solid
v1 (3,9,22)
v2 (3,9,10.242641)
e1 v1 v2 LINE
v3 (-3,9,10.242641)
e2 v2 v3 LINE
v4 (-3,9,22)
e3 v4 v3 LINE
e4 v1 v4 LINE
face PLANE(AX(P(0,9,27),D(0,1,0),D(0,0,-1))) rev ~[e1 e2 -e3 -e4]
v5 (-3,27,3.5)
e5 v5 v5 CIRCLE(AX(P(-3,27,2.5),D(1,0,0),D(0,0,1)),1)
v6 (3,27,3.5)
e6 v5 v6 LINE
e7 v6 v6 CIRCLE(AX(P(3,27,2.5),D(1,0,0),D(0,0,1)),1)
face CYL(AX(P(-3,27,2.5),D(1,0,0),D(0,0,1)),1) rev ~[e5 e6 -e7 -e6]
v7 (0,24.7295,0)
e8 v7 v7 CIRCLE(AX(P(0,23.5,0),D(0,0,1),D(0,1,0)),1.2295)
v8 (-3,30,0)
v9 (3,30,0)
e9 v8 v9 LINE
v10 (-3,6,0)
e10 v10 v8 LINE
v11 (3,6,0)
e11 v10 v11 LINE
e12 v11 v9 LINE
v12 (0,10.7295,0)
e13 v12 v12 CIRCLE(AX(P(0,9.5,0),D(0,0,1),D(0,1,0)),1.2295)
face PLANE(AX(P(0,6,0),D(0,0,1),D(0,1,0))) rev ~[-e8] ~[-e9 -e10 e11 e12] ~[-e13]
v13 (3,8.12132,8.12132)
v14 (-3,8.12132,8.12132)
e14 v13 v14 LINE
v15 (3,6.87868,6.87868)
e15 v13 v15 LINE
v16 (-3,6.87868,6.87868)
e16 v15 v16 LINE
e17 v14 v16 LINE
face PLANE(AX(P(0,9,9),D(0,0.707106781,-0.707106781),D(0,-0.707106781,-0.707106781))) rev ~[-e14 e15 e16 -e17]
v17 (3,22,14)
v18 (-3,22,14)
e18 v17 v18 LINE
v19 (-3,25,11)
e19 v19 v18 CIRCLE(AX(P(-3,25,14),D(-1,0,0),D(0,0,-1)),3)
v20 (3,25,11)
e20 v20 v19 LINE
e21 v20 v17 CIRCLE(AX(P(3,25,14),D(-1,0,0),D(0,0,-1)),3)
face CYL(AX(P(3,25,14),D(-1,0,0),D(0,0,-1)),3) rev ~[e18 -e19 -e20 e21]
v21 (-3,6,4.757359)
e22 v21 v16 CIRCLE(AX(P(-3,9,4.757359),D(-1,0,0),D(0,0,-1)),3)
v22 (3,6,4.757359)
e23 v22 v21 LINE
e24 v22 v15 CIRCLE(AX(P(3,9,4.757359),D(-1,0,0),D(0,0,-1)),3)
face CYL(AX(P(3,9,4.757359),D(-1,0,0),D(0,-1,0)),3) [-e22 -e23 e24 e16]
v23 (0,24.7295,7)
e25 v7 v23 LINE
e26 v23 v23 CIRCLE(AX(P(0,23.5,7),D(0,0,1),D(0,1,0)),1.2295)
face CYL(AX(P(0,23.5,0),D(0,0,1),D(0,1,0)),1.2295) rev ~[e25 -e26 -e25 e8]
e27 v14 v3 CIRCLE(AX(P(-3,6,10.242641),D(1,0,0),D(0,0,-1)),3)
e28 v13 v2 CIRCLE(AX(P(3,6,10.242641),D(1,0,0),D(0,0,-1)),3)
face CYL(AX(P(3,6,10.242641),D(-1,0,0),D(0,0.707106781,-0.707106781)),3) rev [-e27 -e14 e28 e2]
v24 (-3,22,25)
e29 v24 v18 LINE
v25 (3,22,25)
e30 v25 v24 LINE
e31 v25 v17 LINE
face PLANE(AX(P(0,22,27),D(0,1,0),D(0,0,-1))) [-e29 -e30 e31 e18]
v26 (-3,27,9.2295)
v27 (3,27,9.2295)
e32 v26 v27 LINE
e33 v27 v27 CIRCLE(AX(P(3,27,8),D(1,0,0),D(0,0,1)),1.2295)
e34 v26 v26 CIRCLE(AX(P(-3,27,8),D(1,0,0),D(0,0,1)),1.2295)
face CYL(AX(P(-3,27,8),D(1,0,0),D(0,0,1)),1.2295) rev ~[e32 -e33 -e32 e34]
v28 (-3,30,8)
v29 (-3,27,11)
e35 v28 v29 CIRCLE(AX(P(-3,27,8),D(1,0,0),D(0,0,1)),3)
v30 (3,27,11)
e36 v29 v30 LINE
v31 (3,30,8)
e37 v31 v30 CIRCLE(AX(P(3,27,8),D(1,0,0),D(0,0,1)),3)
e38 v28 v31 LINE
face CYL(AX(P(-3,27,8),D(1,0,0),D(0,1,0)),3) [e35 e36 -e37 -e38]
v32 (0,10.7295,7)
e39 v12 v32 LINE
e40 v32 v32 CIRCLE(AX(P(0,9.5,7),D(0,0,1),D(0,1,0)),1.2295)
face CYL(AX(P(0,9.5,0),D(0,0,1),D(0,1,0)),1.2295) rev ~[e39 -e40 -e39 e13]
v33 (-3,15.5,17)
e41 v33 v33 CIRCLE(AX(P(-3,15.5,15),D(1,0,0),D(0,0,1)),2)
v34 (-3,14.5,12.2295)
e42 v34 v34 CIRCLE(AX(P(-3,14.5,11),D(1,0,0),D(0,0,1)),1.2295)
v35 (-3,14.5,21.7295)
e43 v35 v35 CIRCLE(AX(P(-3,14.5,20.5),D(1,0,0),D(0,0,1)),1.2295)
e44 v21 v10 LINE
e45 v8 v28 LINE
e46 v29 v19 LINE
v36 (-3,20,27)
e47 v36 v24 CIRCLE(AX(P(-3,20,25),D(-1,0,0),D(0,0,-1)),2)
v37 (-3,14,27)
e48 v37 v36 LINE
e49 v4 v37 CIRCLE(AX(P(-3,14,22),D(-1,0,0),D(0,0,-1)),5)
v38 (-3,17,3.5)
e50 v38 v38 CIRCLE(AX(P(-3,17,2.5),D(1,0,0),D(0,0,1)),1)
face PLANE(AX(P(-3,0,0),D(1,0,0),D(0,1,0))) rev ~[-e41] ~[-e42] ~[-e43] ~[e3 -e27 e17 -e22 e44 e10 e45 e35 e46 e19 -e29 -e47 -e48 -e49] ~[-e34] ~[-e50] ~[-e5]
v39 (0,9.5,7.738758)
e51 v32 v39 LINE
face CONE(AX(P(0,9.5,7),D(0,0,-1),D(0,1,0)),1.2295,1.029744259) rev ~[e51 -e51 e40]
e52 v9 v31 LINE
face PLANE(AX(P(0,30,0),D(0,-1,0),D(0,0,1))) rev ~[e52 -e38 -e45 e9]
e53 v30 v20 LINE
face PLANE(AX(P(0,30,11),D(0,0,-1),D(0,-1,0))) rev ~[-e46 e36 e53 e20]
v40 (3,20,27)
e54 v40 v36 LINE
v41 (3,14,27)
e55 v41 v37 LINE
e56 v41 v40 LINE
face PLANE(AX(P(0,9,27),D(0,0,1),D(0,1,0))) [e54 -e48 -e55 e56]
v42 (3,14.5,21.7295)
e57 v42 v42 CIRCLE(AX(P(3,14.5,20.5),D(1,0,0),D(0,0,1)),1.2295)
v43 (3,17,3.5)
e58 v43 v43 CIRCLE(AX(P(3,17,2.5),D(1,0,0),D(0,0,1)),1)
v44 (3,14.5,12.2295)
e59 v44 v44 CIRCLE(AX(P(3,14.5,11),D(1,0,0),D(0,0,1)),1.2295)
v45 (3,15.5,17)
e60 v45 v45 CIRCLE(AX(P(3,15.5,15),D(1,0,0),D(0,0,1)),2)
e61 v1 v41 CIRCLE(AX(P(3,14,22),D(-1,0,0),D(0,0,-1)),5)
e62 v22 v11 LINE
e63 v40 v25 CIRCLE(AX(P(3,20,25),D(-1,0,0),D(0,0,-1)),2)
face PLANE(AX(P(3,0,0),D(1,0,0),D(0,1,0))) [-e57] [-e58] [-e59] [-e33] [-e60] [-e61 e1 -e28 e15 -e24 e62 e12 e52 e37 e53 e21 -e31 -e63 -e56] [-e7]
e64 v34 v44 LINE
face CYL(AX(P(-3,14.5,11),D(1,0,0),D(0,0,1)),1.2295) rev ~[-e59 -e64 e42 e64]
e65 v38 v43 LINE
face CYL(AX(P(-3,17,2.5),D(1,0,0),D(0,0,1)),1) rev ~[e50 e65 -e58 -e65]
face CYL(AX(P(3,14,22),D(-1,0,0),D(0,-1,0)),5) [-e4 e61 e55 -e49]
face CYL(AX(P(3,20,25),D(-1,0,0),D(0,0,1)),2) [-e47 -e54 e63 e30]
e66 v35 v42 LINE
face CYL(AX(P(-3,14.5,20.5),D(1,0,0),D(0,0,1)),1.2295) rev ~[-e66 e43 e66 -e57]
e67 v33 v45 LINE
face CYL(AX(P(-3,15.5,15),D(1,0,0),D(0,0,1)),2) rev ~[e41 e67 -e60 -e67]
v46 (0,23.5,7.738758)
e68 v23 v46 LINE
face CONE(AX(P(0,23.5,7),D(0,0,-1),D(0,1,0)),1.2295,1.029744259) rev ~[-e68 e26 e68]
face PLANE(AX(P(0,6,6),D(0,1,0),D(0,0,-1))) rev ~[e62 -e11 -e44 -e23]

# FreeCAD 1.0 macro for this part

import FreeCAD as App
import Part
import Sketcher

V = App.Vector


def edges_at(feature, points):
    """Names of the edges that pass closest to the given points."""
    edges = feature.Shape.Edges
    near = lambda p: min(range(len(edges)), key=lambda i: edges[i].distToShape(Part.Vertex(*p))[0])
    return sorted({f"Edge{near(p) + 1}" for p in points})

doc = App.newDocument("Part")
body = doc.addObject("PartDesign::Body", "Body")

# Sketch on YZ plane
sketch1 = body.newObject("Sketcher::SketchObject", "Sketch")
sketch1.AttachmentSupport = (doc.getObject("YZ_Plane"), [""])
sketch1.MapMode = "FlatFace"
sketch1.addGeometry([
    Part.LineSegment(V(6, 6, 0), V(6, 0, 0)),  # 0
    Part.LineSegment(V(6, 0, 0), V(30, 0, 0)),  # 1
    Part.LineSegment(V(30, 0, 0), V(30, 11, 0)),  # 2
    Part.LineSegment(V(30, 11, 0), V(22, 11, 0)),  # 3
    Part.LineSegment(V(22, 11, 0), V(22, 27, 0)),  # 4
    Part.LineSegment(V(22, 27, 0), V(9, 27, 0)),  # 5
    Part.LineSegment(V(9, 27, 0), V(9, 9, 0)),  # 6
    Part.LineSegment(V(9, 9, 0), V(6, 6, 0)),  # 7
    Part.Circle(V(14.5, 11, 0), V(0, 0, 1), 0.5),  # 8
    Part.Circle(V(27, 8, 0), V(0, 0, 1), 0.5),  # 9
    Part.Circle(V(15.5, 15, 0), V(0, 0, 1), 0.5),  # 10
    Part.Circle(V(14.5, 20.5, 0), V(0, 0, 1), 0.5),  # 11
], False)
sketch1.addConstraint([
    Sketcher.Constraint("Coincident", 0, 2, 1, 1),
    Sketcher.Constraint("Coincident", 1, 2, 2, 1),
    Sketcher.Constraint("Coincident", 2, 2, 3, 1),
    Sketcher.Constraint("Coincident", 3, 2, 4, 1),
    Sketcher.Constraint("Coincident", 4, 2, 5, 1),
    Sketcher.Constraint("Coincident", 5, 2, 6, 1),
    Sketcher.Constraint("Coincident", 6, 2, 7, 1),
    Sketcher.Constraint("Coincident", 7, 2, 0, 1),
    Sketcher.Constraint("Vertical", 0),
    Sketcher.Constraint("Horizontal", 1),
    Sketcher.Constraint("Vertical", 2),
    Sketcher.Constraint("Horizontal", 3),
    Sketcher.Constraint("Vertical", 4),
    Sketcher.Constraint("Horizontal", 5),
    Sketcher.Constraint("Vertical", 6),
    Sketcher.Constraint("Equal", 8, 9),
    Sketcher.Constraint("Equal", 9, 10),
    Sketcher.Constraint("Equal", 10, 11),
    Sketcher.Constraint("PointOnObject", 0, 2, -1),
    Sketcher.Constraint("Horizontal", 8, 3, 2, 2),
    Sketcher.Constraint("Vertical", 8, 3, 11, 3),
    Sketcher.Constraint("Diameter", 8, 1.0),
    Sketcher.Constraint("DistanceX", 3, 2, 3, 1, 8.0),
    Sketcher.Constraint("DistanceY", 0, 2, 0, 1, 6.0),
    Sketcher.Constraint("DistanceY", 2, 1, 2, 2, 11.0),
    Sketcher.Constraint("DistanceX", -1, 1, 9, 3, 27.0),
    Sketcher.Constraint("DistanceY", -1, 1, 9, 3, 8.0),
    Sketcher.Constraint("DistanceY", -1, 1, 10, 3, 15.0),
    Sketcher.Constraint("DistanceX", -1, 1, 0, 2, 6.0),
    Sketcher.Constraint("DistanceX", -1, 1, 1, 2, 30.0),
    Sketcher.Constraint("DistanceY", -1, 1, 4, 2, 27.0),
    Sketcher.Constraint("DistanceX", -1, 1, 5, 2, 9.0),
    Sketcher.Constraint("DistanceY", -1, 1, 6, 2, 9.0),
    Sketcher.Constraint("DistanceX", 8, 3, 10, 3, 1.0),
    Sketcher.Constraint("DistanceX", -1, 1, 8, 3, 14.5),
    Sketcher.Constraint("DistanceY", 8, 3, 11, 3, 9.5),
])
pad1 = body.newObject("PartDesign::Pad", "Pad")
pad1.Profile = sketch1
pad1.Length = 6
pad1.Midplane = True

# Sketch on YZ plane
sketch2 = body.newObject("Sketcher::SketchObject", "Sketch001")
sketch2.AttachmentSupport = (doc.getObject("YZ_Plane"), [""])
sketch2.MapMode = "FlatFace"
sketch2.AttachmentOffset = App.Placement(V(0, 0, -3), App.Rotation())
sketch2.addGeometry(Part.Circle(V(27, 8, 0), V(0, 0, 1), 1.2), False)
sketch2.addConstraint([
    Sketcher.Constraint("Diameter", 0, 2.459),
    Sketcher.Constraint("DistanceX", -1, 1, 0, 3, 27.0),
    Sketcher.Constraint("DistanceY", -1, 1, 0, 3, 8.0),
])
doc.recompute()
hole = body.newObject("PartDesign::Hole", "Hole")
hole.Profile = sketch2
hole.ThreadType = "None"
hole.Diameter = 2.459
hole.DepthType = "ThroughAll"
hole.Reversed = True

# Sketch on YZ plane
sketch3 = body.newObject("Sketcher::SketchObject", "Sketch002")
sketch3.AttachmentSupport = (doc.getObject("YZ_Plane"), [""])
sketch3.MapMode = "FlatFace"
sketch3.AttachmentOffset = App.Placement(V(0, 0, -3), App.Rotation())
sketch3.addGeometry([
    Part.Circle(V(14.5, 20.5, 0), V(0, 0, 1), 1.2),
    Part.Circle(V(14.5, 11, 0), V(0, 0, 1), 1.2),
], False)
sketch3.addConstraint([
    Sketcher.Constraint("Equal", 0, 1),
    Sketcher.Constraint("Vertical", 0, 3, 1, 3),
    Sketcher.Constraint("Diameter", 0, 2.459),
    Sketcher.Constraint("DistanceY", -1, 1, 1, 3, 11.0),
    Sketcher.Constraint("DistanceX", -1, 1, 0, 3, 14.5),
    Sketcher.Constraint("DistanceY", -1, 1, 0, 3, 20.5),
])
doc.recompute()
hole2 = body.newObject("PartDesign::Hole", "Hole001")
hole2.Profile = sketch3
hole2.ThreadType = "None"
hole2.Diameter = 2.459
hole2.DepthType = "ThroughAll"
hole2.Reversed = True

# Sketch on YZ plane
sketch4 = body.newObject("Sketcher::SketchObject", "Sketch003")
sketch4.AttachmentSupport = (doc.getObject("YZ_Plane"), [""])
sketch4.MapMode = "FlatFace"
sketch4.AttachmentOffset = App.Placement(V(0, 0, -3), App.Rotation())
sketch4.addGeometry(Part.Circle(V(15.5, 15, 0), V(0, 0, 1), 2), False)
sketch4.addConstraint([
    Sketcher.Constraint("Diameter", 0, 4.0),
    Sketcher.Constraint("DistanceY", -1, 1, 0, 3, 15.0),
    Sketcher.Constraint("DistanceX", -1, 1, 0, 3, 15.5),
])
doc.recompute()
hole3 = body.newObject("PartDesign::Hole", "Hole002")
hole3.Profile = sketch4
hole3.ThreadType = "None"
hole3.Diameter = 4
hole3.DepthType = "ThroughAll"
hole3.Reversed = True

# Sketch on XY plane
sketch5 = body.newObject("Sketcher::SketchObject", "Sketch004")
sketch5.AttachmentSupport = (doc.getObject("XY_Plane"), [""])
sketch5.MapMode = "FlatFace"
sketch5.addGeometry([
    Part.Circle(V(0, 9.5, 0), V(0, 0, 1), 1.2),
    Part.Circle(V(0, 23.5, 0), V(0, 0, 1), 1.2),
], False)
sketch5.addConstraint([
    Sketcher.Constraint("Equal", 0, 1),
    Sketcher.Constraint("PointOnObject", 0, 3, -2),
    Sketcher.Constraint("PointOnObject", 1, 3, -2),
    Sketcher.Constraint("Diameter", 0, 2.459),
    Sketcher.Constraint("DistanceY", 0, 3, 1, 3, 14.0),
    Sketcher.Constraint("DistanceY", -1, 1, 0, 3, 9.5),
])
doc.recompute()
hole4 = body.newObject("PartDesign::Hole", "Hole003")
hole4.Profile = sketch5
hole4.ThreadType = "None"
hole4.Diameter = 2.459
hole4.DepthType = "Dimension"
hole4.Depth = 7
hole4.DrillPoint = "Angled"
hole4.DrillPointAngle = 118
hole4.Reversed = True
doc.recompute()

fillet = body.newObject("PartDesign::Fillet", "Fillet")
fillet.Base = (hole4, edges_at(hole4, [
    (0, 22, 11),
    (0, 30, 11),
    (0, 9, 9),
    (0, 6, 6),
]))
fillet.Radius = 3

# Sketch on YZ plane
sketch6 = body.newObject("Sketcher::SketchObject", "Sketch005")
sketch6.AttachmentSupport = (doc.getObject("YZ_Plane"), [""])
sketch6.MapMode = "FlatFace"
sketch6.AttachmentOffset = App.Placement(V(0, 0, -3), App.Rotation())
sketch6.addGeometry([
    Part.Circle(V(27, 2.5, 0), V(0, 0, 1), 1),
    Part.Circle(V(17, 2.5, 0), V(0, 0, 1), 1),
], False)
sketch6.addConstraint([
    Sketcher.Constraint("Equal", 0, 1),
    Sketcher.Constraint("Horizontal", 0, 3, 1, 3),
    Sketcher.Constraint("Diameter", 0, 2.0),
    Sketcher.Constraint("DistanceX", -1, 1, 0, 3, 27.0),
    Sketcher.Constraint("DistanceX", -1, 1, 1, 3, 17.0),
    Sketcher.Constraint("DistanceY", -1, 1, 0, 3, 2.5),
])
doc.recompute()
hole5 = body.newObject("PartDesign::Hole", "Hole004")
hole5.Profile = sketch6
hole5.ThreadType = "None"
hole5.Diameter = 2
hole5.DepthType = "ThroughAll"
hole5.Reversed = True
doc.recompute()

fillet2 = body.newObject("PartDesign::Fillet", "Fillet001")
fillet2.Base = (hole5, edges_at(hole5, [(0, 9, 27)]))
fillet2.Radius = 5
doc.recompute()

fillet3 = body.newObject("PartDesign::Fillet", "Fillet002")
fillet3.Base = (fillet2, edges_at(fillet2, [(0, 22, 27)]))
fillet3.Radius = 2

doc.recompute()
